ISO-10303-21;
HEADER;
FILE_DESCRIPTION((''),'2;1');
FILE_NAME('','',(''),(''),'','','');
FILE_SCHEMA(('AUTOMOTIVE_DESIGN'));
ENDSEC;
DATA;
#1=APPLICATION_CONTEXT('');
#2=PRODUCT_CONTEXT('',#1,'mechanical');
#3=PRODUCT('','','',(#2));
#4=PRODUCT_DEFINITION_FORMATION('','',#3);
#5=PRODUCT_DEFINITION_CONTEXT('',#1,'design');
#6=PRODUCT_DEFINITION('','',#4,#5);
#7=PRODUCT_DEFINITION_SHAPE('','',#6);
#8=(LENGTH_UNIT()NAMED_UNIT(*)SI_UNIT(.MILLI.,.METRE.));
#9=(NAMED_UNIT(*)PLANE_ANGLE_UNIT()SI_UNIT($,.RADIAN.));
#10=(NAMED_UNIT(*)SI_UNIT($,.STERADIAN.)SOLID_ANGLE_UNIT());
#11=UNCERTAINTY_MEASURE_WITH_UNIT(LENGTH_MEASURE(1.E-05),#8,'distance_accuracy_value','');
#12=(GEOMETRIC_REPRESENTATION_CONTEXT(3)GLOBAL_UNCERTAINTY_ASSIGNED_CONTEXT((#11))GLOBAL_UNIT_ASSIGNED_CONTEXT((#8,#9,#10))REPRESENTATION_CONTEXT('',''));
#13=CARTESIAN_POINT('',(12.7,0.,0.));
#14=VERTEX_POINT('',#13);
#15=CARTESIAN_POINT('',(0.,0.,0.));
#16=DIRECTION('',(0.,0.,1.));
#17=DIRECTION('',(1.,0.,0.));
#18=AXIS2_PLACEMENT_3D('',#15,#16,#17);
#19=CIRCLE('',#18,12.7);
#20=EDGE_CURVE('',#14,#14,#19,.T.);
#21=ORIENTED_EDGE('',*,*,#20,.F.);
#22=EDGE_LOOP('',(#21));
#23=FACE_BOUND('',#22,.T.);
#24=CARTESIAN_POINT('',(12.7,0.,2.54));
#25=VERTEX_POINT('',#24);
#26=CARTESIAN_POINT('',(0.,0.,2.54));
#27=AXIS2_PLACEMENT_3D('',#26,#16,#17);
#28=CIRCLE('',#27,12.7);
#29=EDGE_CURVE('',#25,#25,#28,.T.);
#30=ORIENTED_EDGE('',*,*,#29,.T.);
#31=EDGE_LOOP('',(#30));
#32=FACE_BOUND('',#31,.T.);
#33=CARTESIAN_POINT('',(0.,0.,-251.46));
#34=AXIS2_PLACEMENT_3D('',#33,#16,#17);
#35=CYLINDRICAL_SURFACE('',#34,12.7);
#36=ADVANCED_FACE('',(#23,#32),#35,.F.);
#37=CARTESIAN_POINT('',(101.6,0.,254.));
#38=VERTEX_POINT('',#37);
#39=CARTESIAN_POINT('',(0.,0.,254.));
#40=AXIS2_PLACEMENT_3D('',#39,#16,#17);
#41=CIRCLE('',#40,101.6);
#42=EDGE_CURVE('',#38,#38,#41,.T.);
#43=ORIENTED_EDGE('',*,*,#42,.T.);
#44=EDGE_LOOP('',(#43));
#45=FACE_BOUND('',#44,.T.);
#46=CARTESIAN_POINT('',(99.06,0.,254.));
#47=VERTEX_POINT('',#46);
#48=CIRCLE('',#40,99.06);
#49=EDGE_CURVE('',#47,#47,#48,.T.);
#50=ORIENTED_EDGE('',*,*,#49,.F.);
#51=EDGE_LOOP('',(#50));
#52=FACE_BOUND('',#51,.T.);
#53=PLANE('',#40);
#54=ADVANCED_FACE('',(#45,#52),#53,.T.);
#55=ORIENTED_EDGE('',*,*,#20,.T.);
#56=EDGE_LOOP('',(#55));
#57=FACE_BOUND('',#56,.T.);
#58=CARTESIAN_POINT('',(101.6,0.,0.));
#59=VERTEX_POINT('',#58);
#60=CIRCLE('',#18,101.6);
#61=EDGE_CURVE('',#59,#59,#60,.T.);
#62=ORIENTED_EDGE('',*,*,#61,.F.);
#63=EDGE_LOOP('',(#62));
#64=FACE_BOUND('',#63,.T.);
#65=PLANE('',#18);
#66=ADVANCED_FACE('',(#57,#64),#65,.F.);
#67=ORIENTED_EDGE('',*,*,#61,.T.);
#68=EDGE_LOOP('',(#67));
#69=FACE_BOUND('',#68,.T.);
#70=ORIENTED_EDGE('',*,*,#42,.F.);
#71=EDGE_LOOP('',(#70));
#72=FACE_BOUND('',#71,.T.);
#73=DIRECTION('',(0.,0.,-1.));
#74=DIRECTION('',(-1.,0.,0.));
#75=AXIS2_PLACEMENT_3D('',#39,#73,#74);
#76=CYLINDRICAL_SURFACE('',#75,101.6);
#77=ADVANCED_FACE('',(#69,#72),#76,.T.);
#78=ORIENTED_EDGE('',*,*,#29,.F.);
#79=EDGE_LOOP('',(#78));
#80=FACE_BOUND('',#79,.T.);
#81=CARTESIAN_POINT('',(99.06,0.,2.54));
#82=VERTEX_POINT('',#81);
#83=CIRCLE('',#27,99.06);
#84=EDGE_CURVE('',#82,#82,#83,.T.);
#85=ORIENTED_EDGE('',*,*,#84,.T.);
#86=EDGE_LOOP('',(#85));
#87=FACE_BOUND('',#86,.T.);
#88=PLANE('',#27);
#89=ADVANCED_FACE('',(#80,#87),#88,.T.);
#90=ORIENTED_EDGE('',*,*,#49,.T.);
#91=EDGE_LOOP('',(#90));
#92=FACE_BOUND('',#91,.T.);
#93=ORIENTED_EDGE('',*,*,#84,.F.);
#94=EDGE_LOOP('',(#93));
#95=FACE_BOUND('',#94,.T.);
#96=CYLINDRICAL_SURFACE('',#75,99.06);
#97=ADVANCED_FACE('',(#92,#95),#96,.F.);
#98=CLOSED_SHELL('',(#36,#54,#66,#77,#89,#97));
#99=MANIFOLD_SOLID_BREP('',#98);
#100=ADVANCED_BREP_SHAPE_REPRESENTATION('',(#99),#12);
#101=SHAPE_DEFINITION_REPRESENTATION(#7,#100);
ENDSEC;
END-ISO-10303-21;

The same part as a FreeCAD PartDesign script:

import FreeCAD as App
import Part
import Sketcher
from FreeCAD import Vector
Q = App.Units.Quantity


def faces_at(feature, points):
    """Names of the faces that lie closest to the given points."""
    faces = feature.Shape.Faces
    near = lambda p: min(range(len(faces)), key=lambda i: faces[i].distToShape(Part.Vertex(*p))[0])
    return sorted({f"Face{near(p) + 1}" for p in points})

doc = App.newDocument("Part")
body = doc.addObject("PartDesign::Body", "Body")

sketch1 = doc.addObject("Sketcher::SketchObject", "Sketch")
body.addObject(sketch1)
sketch1.AttachmentSupport = (doc.XY_Plane, [""])
sketch1.MapMode = "FlatFace"
sketch1.addGeometry(Part.Circle(Vector(0, 0, 0), Vector(0, 0, 1), 102), False)
sketch1.addConstraint([
    Sketcher.Constraint("Coincident", 0, 3, -1, 1),
    Sketcher.Constraint("Diameter", 0, Q("8 in")),
])
pad1 = doc.addObject("PartDesign::Pad", "Pad")
body.addObject(pad1)
pad1.Profile = sketch1
pad1.Length = Q("10 in")
doc.recompute()

thickness = doc.addObject("PartDesign::Thickness", "Thickness")
body.addObject(thickness)
thickness.Base = (pad1, faces_at(pad1, [(0, 0, 254)]))
thickness.Value = Q("0.1 in")
thickness.Reversed = True
thickness.Join = "Intersection"

sketch2 = doc.addObject("Sketcher::SketchObject", "Sketch001")
body.addObject(sketch2)
sketch2.AttachmentSupport = (doc.XY_Plane, [""])
sketch2.MapMode = "FlatFace"
sketch2.AttachmentOffset = App.Placement(Vector(0, 0, 0.1 * 25.4), App.Rotation())
sketch2.addGeometry(Part.Circle(Vector(0, 0, 0), Vector(0, 0, 1), 13), False)
sketch2.addConstraint([
    Sketcher.Constraint("Coincident", 0, 3, -1, 1),
    Sketcher.Constraint("Diameter", 0, Q("1 in")),
])
pocket1 = doc.addObject("PartDesign::Pocket", "Pocket")
body.addObject(pocket1)
pocket1.Profile = sketch2
pocket1.Length = Q("10 in")

doc.recompute()
